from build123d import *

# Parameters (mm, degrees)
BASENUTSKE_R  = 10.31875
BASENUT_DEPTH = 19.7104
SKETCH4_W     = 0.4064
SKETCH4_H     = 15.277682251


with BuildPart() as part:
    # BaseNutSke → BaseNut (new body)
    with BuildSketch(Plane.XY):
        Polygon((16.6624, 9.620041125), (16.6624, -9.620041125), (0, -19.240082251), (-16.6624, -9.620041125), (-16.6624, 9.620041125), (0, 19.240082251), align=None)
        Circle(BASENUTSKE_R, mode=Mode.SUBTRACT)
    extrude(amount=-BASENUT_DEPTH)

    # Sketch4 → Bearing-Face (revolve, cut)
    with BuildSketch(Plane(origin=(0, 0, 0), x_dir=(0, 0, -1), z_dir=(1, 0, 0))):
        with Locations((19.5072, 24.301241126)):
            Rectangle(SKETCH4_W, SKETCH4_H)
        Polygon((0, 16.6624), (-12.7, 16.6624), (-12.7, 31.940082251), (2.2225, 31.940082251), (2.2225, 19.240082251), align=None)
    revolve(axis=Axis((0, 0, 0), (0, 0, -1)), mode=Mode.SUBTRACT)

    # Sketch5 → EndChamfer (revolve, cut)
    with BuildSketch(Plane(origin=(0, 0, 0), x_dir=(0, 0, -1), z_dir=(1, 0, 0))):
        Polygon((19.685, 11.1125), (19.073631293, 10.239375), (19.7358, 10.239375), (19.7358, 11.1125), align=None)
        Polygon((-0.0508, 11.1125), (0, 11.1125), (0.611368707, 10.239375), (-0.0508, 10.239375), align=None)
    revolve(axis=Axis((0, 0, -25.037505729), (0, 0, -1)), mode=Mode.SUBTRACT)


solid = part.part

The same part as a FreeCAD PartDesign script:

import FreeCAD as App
import Part
import Sketcher
from FreeCAD import Vector
Q = App.Units.Quantity


def add_polygon(sketch, points):
    """Adds a closed chain of lines whose ends are joined by coincident constraints."""
    first, n = sketch.GeometryCount, len(points)
    for a, b in zip(points, points[1:] + points[:1]):
        sketch.addGeometry(Part.LineSegment(App.Vector(*a, 0), App.Vector(*b, 0)), False)
    for i in range(n):
        sketch.addConstraint(Sketcher.Constraint("Coincident", first + i, 2, first + (i + 1) % n, 1))

doc = App.newDocument("Part")
body = doc.addObject("PartDesign::Body", "Body")

sketch1 = body.newObject("Sketcher::SketchObject", "Sketch")
sketch1.AttachmentSupport = (doc.getObject("XY_Plane"), [""])
sketch1.MapMode = "FlatFace"
add_polygon(sketch1, [(17, -10), (17, 10), (0, 19), (-17, 10), (-17, -10), (0, -19)])
sketch1.addGeometry(Part.Circle(Vector(0, 0, 0), Vector(0, 0, 1), 10), False)
sketch1.addConstraint([
    Sketcher.Constraint("Vertical", 0),
    Sketcher.Constraint("Vertical", 3),
    Sketcher.Constraint("Coincident", 6, 3, -1, 1),
    Sketcher.Constraint("Symmetric", 0, 2, 3, 2, -1, 1),
    Sketcher.Constraint("Symmetric", 1, 2, 4, 2, -1, 1),
    Sketcher.Constraint("PointOnObject", 1, 2, -2),
    Sketcher.Constraint("Parallel", 2, 5),
    Sketcher.Constraint("Horizontal", 0, 2, 2, 2),
    Sketcher.Constraint("Diameter", 6, Q("0.8125 in")),
    Sketcher.Constraint("Angle", 1, Q("150 deg")),
    Sketcher.Constraint("DistanceX", -1, 1, 0, 2, Q("0.656 in")),
    Sketcher.Constraint("DistanceY", 0, 1, 0, 2, Q("19.240082 mm")),
])
pad1 = body.newObject("PartDesign::Pad", "Pad")
pad1.Profile = sketch1
pad1.Length = Q("0.776 in")
pad1.Reversed = True

sketch2 = body.newObject("Sketcher::SketchObject", "Sketch001")
sketch2.AttachmentSupport = (doc.getObject("YZ_Plane"), [""])
sketch2.MapMode = "FlatFace"
add_polygon(sketch2, [(31.94, -19.3), (16.66, -19.3), (16.66, -19.71), (31.94, -19.71)])
add_polygon(sketch2, [(16.66, 12.7), (16.66, 0), (19.24, -2.22), (31.94, -2.22), (31.94, 12.7)])
sketch2.addConstraint([
    Sketcher.Constraint("Horizontal", 0),
    Sketcher.Constraint("Vertical", 1),
    Sketcher.Constraint("Horizontal", 2),
    Sketcher.Constraint("Vertical", 3),
    Sketcher.Constraint("Vertical", 4),
    Sketcher.Constraint("Horizontal", 6),
    Sketcher.Constraint("Vertical", 7),
    Sketcher.Constraint("Horizontal", 8),
    Sketcher.Constraint("PointOnObject", 4, 2, -1),
    Sketcher.Constraint("Vertical", 1, 2, 4, 2),
    Sketcher.Constraint("Vertical", 3, 2, 6, 2),
    Sketcher.Constraint("Equal", 6, 4),
    Sketcher.Constraint("DistanceX", 6, 1, 6, 2, Q("0.5 in")),
    Sketcher.Constraint("DistanceY", 1, 2, 1, 1, Q("0.016 in")),
    Sketcher.Constraint("DistanceY", 0, 2, -1, 1, Q("0.76 in")),
    Sketcher.Constraint("DistanceY", 7, 1, 7, 2, Q("0.5875 in")),
    Sketcher.Constraint("DistanceX", -1, 1, 0, 2, Q("0.656 in")),
    Sketcher.Constraint("Distance", 5, Q("3.403521 mm")),
])
groove = body.newObject("PartDesign::Groove", "Groove")
groove.Profile = sketch2
groove.ReferenceAxis = (sketch2, ["V_Axis"])
groove.Angle = 360

sketch3 = body.newObject("Sketcher::SketchObject", "Sketch002")
sketch3.AttachmentSupport = (doc.getObject("YZ_Plane"), [""])
sketch3.MapMode = "FlatFace"
add_polygon(sketch3, [(11.11, -19.68), (10.24, -19.07), (10.24, -19.74), (11.11, -19.74)])
add_polygon(sketch3, [(11.11, 0), (11.11, 0.05), (10.24, 0.05), (10.24, -0.61)])
sketch3.addConstraint([
    Sketcher.Constraint("Vertical", 1),
    Sketcher.Constraint("Horizontal", 2),
    Sketcher.Constraint("Vertical", 3),
    Sketcher.Constraint("Vertical", 4),
    Sketcher.Constraint("Horizontal", 5),
    Sketcher.Constraint("Vertical", 6),
    Sketcher.Constraint("PointOnObject", 7, 2, -1),
    Sketcher.Constraint("Vertical", 3, 2, 4, 2),
    Sketcher.Constraint("Vertical", 1, 2, 5, 2),
    Sketcher.Constraint("Equal", 3, 4),
    Sketcher.Constraint("Equal", 1, 6),
    Sketcher.Constraint("Angle", 0, Q("145 deg")),
    Sketcher.Constraint("DistanceY", 3, 1, 3, 2, Q("0.002 in")),
    Sketcher.Constraint("DistanceY", 1, 2, -1, 1, Q("0.777 in")),
    Sketcher.Constraint("DistanceX", -1, 1, 2, 2, Q("0.4375 in")),
    Sketcher.Constraint("DistanceY", 1, 2, 1, 1, Q("0.662169 mm")),
])
groove2 = body.newObject("PartDesign::Groove", "Groove001")
groove2.Profile = sketch3
groove2.ReferenceAxis = (sketch3, ["V_Axis"])
groove2.Angle = 360

doc.recompute()
